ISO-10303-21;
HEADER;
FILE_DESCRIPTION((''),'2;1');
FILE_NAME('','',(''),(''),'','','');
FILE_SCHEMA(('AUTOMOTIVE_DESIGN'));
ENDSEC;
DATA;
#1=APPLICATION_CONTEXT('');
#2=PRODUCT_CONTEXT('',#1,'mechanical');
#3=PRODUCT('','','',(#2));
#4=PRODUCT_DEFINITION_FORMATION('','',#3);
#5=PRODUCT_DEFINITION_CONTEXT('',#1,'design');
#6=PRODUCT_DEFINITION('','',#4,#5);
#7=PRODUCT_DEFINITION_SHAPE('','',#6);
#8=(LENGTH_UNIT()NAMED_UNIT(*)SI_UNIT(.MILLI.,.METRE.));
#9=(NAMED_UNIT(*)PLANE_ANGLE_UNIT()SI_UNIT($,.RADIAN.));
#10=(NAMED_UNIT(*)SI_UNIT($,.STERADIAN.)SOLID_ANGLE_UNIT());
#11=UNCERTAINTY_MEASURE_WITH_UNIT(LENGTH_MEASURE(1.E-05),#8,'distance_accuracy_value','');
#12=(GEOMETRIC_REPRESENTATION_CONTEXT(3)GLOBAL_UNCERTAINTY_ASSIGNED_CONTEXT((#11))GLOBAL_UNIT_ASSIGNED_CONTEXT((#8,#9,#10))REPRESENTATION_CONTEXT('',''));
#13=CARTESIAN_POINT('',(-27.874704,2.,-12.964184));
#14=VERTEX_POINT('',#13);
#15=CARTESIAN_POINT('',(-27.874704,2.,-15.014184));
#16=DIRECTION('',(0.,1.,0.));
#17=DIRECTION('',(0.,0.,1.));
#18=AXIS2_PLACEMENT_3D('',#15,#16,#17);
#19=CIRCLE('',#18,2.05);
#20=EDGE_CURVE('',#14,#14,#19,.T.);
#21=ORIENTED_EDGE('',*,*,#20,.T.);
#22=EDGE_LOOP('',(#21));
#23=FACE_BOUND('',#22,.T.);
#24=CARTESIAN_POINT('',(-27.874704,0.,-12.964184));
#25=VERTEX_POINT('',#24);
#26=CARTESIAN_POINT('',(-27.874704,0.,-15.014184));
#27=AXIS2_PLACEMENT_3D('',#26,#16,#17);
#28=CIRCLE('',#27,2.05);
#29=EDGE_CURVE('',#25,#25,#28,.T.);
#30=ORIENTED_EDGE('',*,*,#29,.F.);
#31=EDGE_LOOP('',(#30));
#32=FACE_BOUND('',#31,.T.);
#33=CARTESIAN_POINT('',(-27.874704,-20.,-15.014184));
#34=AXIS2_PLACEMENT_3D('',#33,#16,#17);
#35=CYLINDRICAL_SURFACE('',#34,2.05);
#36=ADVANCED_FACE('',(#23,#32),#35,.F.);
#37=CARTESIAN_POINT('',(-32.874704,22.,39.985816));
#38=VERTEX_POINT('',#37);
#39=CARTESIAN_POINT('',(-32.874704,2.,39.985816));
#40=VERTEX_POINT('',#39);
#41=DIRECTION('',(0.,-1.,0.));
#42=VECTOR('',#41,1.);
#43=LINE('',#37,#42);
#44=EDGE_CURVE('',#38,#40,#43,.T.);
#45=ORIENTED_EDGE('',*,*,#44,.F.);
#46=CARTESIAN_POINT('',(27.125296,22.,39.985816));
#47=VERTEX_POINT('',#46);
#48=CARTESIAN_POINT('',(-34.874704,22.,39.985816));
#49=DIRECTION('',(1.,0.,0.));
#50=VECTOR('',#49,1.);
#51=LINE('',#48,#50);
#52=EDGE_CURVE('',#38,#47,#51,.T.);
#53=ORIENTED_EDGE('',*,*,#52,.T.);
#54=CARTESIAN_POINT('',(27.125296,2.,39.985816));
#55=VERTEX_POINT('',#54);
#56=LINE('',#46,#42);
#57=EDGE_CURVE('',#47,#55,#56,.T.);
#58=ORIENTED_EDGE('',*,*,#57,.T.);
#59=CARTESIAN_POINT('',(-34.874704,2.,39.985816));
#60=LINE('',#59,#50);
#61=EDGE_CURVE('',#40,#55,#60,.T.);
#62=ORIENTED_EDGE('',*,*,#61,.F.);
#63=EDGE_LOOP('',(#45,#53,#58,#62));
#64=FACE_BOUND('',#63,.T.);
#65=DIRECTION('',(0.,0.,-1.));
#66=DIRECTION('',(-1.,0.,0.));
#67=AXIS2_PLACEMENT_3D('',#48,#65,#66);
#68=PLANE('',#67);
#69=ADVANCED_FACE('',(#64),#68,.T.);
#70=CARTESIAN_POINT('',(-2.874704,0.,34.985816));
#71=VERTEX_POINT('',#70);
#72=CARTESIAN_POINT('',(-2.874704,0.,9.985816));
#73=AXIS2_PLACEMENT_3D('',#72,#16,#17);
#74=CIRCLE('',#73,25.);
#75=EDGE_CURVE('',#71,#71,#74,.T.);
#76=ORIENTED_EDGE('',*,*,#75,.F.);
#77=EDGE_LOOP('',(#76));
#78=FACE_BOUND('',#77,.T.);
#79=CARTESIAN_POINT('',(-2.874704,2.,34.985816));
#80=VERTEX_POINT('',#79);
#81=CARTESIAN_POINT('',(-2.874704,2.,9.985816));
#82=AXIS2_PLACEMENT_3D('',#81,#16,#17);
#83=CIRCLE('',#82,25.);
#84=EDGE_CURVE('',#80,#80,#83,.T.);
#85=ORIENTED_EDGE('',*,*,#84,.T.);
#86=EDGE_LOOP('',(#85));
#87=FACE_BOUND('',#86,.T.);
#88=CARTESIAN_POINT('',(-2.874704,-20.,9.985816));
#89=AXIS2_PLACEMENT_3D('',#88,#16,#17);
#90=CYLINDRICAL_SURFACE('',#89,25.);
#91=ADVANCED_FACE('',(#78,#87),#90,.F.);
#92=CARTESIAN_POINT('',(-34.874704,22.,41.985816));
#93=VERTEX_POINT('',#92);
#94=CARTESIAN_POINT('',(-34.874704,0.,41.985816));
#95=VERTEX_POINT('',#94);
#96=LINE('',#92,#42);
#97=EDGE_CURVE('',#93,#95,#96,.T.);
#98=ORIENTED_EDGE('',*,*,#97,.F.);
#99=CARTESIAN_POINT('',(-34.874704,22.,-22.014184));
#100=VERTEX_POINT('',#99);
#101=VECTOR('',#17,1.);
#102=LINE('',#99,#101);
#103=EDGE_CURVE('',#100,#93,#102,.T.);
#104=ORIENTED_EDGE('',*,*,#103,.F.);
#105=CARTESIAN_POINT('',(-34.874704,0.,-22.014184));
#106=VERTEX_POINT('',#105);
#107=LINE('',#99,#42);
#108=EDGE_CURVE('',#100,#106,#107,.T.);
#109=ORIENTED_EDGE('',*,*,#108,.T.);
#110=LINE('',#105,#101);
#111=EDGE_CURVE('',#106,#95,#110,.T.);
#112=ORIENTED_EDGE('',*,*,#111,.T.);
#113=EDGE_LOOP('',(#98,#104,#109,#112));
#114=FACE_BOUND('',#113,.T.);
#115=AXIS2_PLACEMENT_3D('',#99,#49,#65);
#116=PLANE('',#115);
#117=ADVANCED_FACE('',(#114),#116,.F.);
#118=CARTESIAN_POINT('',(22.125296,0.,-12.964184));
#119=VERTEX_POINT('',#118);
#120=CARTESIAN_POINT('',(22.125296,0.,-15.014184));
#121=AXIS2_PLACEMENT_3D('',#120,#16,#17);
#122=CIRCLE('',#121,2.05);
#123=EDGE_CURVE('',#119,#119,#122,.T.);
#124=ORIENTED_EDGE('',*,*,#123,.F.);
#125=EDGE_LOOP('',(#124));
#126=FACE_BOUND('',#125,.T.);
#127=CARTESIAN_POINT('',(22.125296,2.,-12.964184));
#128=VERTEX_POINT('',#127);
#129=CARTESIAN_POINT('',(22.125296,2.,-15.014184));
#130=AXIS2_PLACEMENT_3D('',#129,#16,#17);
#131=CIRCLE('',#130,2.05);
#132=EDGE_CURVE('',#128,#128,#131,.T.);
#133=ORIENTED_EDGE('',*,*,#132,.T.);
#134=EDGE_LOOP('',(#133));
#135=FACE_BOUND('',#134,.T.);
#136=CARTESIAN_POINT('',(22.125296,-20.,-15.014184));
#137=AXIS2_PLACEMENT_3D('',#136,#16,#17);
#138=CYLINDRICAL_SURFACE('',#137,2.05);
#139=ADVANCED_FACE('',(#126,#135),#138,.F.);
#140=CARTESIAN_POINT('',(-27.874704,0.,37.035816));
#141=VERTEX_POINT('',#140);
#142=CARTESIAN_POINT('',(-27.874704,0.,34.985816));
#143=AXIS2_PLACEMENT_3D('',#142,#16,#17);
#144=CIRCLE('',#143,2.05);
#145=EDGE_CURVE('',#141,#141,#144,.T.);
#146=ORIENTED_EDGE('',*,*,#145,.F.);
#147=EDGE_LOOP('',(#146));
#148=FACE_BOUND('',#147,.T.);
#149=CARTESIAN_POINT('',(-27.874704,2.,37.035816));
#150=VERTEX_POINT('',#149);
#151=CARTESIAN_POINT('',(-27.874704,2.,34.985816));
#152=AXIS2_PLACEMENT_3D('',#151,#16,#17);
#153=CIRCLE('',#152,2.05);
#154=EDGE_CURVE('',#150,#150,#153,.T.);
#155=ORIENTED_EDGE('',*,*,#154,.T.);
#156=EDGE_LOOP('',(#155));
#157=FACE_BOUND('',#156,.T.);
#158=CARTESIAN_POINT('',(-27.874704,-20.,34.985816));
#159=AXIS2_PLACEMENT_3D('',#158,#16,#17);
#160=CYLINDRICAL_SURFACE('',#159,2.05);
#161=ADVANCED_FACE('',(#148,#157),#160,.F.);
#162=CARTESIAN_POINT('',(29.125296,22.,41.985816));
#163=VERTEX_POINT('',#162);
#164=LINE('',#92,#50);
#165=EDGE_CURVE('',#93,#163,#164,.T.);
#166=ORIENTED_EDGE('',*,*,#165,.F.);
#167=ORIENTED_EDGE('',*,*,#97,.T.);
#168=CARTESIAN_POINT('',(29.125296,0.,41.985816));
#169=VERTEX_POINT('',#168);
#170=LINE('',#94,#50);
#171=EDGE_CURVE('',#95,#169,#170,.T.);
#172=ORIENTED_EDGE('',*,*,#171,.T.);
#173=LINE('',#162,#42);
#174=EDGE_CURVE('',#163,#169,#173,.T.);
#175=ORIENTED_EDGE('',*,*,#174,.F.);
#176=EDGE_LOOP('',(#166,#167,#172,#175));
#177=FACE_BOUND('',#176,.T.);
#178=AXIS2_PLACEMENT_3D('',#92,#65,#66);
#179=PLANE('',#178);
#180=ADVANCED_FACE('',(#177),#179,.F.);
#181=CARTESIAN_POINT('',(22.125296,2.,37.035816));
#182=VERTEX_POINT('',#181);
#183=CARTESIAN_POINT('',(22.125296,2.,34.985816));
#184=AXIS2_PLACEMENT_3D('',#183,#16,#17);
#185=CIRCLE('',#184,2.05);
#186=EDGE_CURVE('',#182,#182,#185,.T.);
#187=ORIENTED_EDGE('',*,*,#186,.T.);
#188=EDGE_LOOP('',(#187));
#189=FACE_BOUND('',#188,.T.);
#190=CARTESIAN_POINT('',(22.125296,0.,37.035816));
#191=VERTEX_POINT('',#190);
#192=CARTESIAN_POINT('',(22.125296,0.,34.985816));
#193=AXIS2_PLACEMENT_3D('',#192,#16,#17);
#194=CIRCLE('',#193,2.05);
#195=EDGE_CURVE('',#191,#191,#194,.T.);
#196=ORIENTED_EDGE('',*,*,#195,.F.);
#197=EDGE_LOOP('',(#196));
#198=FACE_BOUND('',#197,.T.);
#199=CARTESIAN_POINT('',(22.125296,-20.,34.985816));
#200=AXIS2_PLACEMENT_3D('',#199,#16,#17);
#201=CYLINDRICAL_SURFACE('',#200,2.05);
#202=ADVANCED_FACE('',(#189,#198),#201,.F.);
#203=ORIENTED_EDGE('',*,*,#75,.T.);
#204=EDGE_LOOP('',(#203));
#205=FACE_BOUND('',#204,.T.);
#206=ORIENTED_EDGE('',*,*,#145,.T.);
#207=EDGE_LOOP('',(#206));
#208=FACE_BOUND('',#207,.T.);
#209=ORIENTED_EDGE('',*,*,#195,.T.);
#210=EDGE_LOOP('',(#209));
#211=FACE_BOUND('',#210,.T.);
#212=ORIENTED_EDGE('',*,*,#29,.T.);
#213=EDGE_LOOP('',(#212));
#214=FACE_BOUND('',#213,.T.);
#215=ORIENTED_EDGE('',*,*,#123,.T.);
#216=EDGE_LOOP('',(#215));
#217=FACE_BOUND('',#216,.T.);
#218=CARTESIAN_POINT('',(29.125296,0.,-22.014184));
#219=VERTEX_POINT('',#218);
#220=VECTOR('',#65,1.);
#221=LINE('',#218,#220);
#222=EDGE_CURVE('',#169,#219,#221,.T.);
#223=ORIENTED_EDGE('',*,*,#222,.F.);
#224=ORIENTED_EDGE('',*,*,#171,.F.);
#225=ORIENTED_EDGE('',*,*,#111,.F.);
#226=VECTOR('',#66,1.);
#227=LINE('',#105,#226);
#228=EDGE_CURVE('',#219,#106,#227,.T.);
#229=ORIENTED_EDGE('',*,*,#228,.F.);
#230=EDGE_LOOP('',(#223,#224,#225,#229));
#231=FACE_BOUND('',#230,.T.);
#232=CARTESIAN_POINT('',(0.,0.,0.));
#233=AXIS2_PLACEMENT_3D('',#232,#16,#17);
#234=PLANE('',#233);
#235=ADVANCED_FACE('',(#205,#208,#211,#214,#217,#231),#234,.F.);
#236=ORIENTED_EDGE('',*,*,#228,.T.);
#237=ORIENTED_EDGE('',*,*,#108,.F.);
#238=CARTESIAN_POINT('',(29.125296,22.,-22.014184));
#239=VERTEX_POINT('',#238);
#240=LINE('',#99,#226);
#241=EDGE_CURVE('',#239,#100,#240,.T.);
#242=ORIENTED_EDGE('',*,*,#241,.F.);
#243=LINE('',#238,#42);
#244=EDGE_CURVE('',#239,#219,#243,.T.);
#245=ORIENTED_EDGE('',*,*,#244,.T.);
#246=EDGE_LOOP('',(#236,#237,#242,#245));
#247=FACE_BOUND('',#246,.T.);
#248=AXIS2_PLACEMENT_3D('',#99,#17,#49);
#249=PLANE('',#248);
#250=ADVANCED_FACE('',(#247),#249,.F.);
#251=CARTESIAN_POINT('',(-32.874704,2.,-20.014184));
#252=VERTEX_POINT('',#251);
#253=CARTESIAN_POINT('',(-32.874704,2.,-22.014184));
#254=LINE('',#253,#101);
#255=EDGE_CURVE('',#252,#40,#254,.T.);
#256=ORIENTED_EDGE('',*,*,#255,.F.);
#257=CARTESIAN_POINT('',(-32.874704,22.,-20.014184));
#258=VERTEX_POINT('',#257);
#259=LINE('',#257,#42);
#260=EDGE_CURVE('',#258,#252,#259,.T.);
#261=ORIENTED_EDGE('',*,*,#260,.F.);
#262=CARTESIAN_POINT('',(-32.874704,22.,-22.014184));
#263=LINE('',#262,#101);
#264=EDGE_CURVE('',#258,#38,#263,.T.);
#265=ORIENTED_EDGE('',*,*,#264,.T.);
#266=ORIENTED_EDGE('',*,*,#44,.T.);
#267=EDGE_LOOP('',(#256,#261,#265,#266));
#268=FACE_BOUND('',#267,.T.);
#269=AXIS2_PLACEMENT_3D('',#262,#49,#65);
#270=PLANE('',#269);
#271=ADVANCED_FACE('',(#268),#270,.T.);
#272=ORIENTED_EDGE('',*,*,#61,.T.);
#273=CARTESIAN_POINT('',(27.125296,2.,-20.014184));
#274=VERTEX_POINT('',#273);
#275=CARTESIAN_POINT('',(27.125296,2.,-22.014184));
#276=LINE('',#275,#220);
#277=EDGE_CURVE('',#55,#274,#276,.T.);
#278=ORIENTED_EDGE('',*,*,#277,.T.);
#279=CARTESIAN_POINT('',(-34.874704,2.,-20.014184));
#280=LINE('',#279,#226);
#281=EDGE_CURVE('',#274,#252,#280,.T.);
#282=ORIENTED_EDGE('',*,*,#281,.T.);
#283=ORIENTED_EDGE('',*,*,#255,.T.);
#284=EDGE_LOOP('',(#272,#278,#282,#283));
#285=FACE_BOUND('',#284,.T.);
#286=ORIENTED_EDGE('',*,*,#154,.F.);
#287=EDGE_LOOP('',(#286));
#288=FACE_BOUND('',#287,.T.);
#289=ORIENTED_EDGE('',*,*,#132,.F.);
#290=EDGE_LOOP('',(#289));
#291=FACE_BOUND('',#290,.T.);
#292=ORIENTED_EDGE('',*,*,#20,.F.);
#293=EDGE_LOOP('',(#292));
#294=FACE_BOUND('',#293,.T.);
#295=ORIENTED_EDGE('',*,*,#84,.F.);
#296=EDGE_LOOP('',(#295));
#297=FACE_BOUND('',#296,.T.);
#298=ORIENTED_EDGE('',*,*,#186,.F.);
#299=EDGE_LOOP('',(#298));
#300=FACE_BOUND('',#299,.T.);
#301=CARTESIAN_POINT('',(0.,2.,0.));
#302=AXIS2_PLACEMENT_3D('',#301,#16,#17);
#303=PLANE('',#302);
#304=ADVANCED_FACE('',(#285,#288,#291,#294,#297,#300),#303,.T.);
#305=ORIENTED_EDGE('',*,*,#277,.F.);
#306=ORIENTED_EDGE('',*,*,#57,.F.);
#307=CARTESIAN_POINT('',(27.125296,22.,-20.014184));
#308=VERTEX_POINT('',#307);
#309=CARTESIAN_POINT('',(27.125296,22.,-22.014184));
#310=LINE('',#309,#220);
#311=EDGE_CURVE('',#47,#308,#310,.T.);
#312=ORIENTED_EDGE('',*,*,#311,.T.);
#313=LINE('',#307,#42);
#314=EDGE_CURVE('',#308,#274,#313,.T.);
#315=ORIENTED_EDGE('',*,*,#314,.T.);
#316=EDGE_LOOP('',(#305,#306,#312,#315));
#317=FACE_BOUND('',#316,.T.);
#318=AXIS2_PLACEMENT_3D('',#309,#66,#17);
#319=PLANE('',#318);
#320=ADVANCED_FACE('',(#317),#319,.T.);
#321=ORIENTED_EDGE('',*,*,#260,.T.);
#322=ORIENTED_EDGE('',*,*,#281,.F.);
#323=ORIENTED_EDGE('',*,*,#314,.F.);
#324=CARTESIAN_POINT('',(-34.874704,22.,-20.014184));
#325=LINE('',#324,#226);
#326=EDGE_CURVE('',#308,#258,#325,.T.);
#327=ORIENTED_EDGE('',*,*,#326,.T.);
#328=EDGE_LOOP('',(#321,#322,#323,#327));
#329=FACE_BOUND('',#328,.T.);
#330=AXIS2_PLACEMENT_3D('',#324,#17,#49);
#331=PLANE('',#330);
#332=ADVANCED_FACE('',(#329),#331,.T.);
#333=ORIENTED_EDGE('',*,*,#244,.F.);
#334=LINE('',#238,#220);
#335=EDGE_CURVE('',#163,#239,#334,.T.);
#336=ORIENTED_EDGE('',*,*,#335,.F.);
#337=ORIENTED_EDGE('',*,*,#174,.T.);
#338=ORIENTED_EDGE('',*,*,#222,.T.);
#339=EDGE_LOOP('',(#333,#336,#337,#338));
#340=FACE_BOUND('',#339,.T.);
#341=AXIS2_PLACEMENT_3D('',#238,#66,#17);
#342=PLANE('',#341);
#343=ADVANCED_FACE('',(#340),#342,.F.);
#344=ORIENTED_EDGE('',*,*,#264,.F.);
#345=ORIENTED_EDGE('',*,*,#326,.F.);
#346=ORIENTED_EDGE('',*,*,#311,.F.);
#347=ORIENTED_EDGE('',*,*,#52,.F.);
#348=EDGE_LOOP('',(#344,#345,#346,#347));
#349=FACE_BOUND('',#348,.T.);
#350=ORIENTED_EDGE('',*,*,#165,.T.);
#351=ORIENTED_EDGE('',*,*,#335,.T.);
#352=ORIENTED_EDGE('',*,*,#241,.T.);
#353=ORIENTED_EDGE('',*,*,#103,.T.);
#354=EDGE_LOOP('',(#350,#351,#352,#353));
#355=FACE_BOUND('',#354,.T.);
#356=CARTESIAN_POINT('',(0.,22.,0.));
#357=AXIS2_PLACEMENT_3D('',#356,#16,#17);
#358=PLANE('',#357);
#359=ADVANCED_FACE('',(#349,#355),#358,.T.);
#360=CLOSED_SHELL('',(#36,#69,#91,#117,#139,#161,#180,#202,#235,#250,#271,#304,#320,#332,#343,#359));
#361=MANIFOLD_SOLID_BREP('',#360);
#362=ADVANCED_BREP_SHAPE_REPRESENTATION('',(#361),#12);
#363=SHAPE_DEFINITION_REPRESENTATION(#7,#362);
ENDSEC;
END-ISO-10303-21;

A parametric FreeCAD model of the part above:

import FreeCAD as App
import Part
import Sketcher

V = App.Vector


def faces_at(feature, points):
    """Names of the faces that lie closest to the given points."""
    faces = feature.Shape.Faces
    near = lambda p: min(range(len(faces)), key=lambda i: faces[i].distToShape(Part.Vertex(*p))[0])
    return sorted({f"Face{near(p) + 1}" for p in points})


def add_polygon(sketch, points):
    """Adds a closed chain of lines whose ends are joined by coincident constraints."""
    first, n = sketch.GeometryCount, len(points)
    for a, b in zip(points, points[1:] + points[:1]):
        sketch.addGeometry(Part.LineSegment(App.Vector(*a, 0), App.Vector(*b, 0)), False)
    for i in range(n):
        sketch.addConstraint(Sketcher.Constraint("Coincident", first + i, 2, first + (i + 1) % n, 1))

doc = App.newDocument("Part")
body = doc.addObject("PartDesign::Body", "Body")

sketch1 = body.newObject("Sketcher::SketchObject", "Sketch")
sketch1.AttachmentSupport = (doc.getObject("XZ_Plane"), [""])
sketch1.MapMode = "FlatFace"
add_polygon(sketch1, [(-35, -22), (-35, 42), (29, 42), (29, -22)])
sketch1.addConstraint([
    Sketcher.Constraint("Vertical", 0),
    Sketcher.Constraint("Horizontal", 1),
    Sketcher.Constraint("Vertical", 2),
    Sketcher.Constraint("Horizontal", 3),
    Sketcher.Constraint("Equal", 3, 0),
    Sketcher.Constraint("DistanceX", 1, 1, 1, 2, 64.0),
    Sketcher.Constraint("DistanceX", 0, 2, -1, 1, 34.874704),
    Sketcher.Constraint("DistanceY", -1, 1, 0, 2, 41.985816),
])
pad1 = body.newObject("PartDesign::Pad", "Pad")
pad1.Profile = sketch1
pad1.Length = 22
pad1.Reversed = True
doc.recompute()

thickness = body.newObject("PartDesign::Thickness", "Thickness")
thickness.Base = (pad1, faces_at(pad1, [(-2.875, 22, 9.986)]))
thickness.Value = 2
thickness.Reversed = True
thickness.Join = "Intersection"

sketch2 = body.newObject("Sketcher::SketchObject", "Sketch001")
sketch2.AttachmentSupport = (doc.getObject("XZ_Plane"), [""])
sketch2.MapMode = "FlatFace"
sketch2.AttachmentOffset = App.Placement(V(0, 0, -2), App.Rotation())
sketch2.addGeometry(Part.Circle(V(-3, 10, 0), V(0, 0, 1), 25), False)
sketch2.addConstraint([
    Sketcher.Constraint("Diameter", 0, 50.0),
    Sketcher.Constraint("DistanceX", 0, 3, -1, 1, 2.874704),
    Sketcher.Constraint("DistanceY", -1, 1, 0, 3, 9.985816),
])
pocket1 = body.newObject("PartDesign::Pocket", "Pocket")
pocket1.Profile = sketch2
pocket1.Length = 22
pocket1.Reversed = True

sketch3 = body.newObject("Sketcher::SketchObject", "Sketch002")
sketch3.AttachmentSupport = (doc.getObject("XZ_Plane"), [""])
sketch3.MapMode = "FlatFace"
sketch3.AttachmentOffset = App.Placement(V(0, 0, -2), App.Rotation())
sketch3.addGeometry([
    Part.Circle(V(-27.9, -15, 0), V(0, 0, 1), 2),
    Part.Circle(V(22.1, -15, 0), V(0, 0, 1), 2),
    Part.Circle(V(-27.9, 35, 0), V(0, 0, 1), 2),
    Part.Circle(V(22.1, 35, 0), V(0, 0, 1), 2),
], False)
sketch3.addConstraint([
    Sketcher.Constraint("Equal", 0, 1),
    Sketcher.Constraint("Equal", 1, 2),
    Sketcher.Constraint("Equal", 2, 3),
    Sketcher.Constraint("Horizontal", 0, 3, 1, 3),
    Sketcher.Constraint("Horizontal", 2, 3, 3, 3),
    Sketcher.Constraint("Vertical", 0, 3, 2, 3),
    Sketcher.Constraint("Vertical", 1, 3, 3, 3),
    Sketcher.Constraint("Diameter", 0, 4.1),
    Sketcher.Constraint("DistanceX", 0, 3, 1, 3, 50.0),
    Sketcher.Constraint("DistanceY", 0, 3, 2, 3, 50.0),
    Sketcher.Constraint("DistanceX", 0, 3, -1, 1, 27.874704),
    Sketcher.Constraint("DistanceY", 0, 3, -1, 1, 15.014184),
])
pocket2 = body.newObject("PartDesign::Pocket", "Pocket001")
pocket2.Profile = sketch3
pocket2.Length = 22
pocket2.Reversed = True

doc.recompute()
